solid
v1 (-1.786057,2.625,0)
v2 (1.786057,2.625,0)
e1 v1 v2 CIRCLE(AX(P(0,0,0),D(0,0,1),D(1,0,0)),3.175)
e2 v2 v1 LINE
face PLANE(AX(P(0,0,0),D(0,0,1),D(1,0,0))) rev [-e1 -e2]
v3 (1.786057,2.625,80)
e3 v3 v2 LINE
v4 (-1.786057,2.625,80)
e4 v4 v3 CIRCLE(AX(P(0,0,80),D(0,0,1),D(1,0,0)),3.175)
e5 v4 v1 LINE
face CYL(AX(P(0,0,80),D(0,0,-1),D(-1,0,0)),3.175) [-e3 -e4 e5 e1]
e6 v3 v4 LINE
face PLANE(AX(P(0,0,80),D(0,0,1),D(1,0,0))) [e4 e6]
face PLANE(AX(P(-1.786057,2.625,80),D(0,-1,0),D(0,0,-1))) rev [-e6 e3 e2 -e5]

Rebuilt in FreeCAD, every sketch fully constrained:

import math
import FreeCAD as App
import Part
import Sketcher

doc = App.newDocument("Part")
body = doc.addObject("PartDesign::Body", "Body")

sketch1 = doc.addObject("Sketcher::SketchObject", "Sketch")
body.addObject(sketch1)
sketch1.AttachmentSupport = (doc.XY_Plane, [""])
sketch1.MapMode = "FlatFace"
sketch1.addGeometry([
    Part.LineSegment(App.Vector(1.8, 2.6, 0), App.Vector(-1.8, 2.6, 0)),
    Part.ArcOfCircle(Part.Circle(App.Vector(0, 0, 0), App.Vector(0, 0, 1), 3.2), math.radians(124), math.radians(416)),
], False)
sketch1.addConstraint([
    Sketcher.Constraint("Coincident", 0, 1, 1, 2),
    Sketcher.Constraint("Coincident", 1, 1, 0, 2),
    Sketcher.Constraint("Horizontal", 0),
    Sketcher.Constraint("Coincident", 1, 3, -1, 1),
    Sketcher.Constraint("Radius", 1, 3.175),
    Sketcher.Constraint("DistanceY", -1, 1, 0, 1, 2.625),
])
pad1 = doc.addObject("PartDesign::Pad", "Pad")
body.addObject(pad1)
pad1.Profile = sketch1
pad1.Length = 80

doc.recompute()
